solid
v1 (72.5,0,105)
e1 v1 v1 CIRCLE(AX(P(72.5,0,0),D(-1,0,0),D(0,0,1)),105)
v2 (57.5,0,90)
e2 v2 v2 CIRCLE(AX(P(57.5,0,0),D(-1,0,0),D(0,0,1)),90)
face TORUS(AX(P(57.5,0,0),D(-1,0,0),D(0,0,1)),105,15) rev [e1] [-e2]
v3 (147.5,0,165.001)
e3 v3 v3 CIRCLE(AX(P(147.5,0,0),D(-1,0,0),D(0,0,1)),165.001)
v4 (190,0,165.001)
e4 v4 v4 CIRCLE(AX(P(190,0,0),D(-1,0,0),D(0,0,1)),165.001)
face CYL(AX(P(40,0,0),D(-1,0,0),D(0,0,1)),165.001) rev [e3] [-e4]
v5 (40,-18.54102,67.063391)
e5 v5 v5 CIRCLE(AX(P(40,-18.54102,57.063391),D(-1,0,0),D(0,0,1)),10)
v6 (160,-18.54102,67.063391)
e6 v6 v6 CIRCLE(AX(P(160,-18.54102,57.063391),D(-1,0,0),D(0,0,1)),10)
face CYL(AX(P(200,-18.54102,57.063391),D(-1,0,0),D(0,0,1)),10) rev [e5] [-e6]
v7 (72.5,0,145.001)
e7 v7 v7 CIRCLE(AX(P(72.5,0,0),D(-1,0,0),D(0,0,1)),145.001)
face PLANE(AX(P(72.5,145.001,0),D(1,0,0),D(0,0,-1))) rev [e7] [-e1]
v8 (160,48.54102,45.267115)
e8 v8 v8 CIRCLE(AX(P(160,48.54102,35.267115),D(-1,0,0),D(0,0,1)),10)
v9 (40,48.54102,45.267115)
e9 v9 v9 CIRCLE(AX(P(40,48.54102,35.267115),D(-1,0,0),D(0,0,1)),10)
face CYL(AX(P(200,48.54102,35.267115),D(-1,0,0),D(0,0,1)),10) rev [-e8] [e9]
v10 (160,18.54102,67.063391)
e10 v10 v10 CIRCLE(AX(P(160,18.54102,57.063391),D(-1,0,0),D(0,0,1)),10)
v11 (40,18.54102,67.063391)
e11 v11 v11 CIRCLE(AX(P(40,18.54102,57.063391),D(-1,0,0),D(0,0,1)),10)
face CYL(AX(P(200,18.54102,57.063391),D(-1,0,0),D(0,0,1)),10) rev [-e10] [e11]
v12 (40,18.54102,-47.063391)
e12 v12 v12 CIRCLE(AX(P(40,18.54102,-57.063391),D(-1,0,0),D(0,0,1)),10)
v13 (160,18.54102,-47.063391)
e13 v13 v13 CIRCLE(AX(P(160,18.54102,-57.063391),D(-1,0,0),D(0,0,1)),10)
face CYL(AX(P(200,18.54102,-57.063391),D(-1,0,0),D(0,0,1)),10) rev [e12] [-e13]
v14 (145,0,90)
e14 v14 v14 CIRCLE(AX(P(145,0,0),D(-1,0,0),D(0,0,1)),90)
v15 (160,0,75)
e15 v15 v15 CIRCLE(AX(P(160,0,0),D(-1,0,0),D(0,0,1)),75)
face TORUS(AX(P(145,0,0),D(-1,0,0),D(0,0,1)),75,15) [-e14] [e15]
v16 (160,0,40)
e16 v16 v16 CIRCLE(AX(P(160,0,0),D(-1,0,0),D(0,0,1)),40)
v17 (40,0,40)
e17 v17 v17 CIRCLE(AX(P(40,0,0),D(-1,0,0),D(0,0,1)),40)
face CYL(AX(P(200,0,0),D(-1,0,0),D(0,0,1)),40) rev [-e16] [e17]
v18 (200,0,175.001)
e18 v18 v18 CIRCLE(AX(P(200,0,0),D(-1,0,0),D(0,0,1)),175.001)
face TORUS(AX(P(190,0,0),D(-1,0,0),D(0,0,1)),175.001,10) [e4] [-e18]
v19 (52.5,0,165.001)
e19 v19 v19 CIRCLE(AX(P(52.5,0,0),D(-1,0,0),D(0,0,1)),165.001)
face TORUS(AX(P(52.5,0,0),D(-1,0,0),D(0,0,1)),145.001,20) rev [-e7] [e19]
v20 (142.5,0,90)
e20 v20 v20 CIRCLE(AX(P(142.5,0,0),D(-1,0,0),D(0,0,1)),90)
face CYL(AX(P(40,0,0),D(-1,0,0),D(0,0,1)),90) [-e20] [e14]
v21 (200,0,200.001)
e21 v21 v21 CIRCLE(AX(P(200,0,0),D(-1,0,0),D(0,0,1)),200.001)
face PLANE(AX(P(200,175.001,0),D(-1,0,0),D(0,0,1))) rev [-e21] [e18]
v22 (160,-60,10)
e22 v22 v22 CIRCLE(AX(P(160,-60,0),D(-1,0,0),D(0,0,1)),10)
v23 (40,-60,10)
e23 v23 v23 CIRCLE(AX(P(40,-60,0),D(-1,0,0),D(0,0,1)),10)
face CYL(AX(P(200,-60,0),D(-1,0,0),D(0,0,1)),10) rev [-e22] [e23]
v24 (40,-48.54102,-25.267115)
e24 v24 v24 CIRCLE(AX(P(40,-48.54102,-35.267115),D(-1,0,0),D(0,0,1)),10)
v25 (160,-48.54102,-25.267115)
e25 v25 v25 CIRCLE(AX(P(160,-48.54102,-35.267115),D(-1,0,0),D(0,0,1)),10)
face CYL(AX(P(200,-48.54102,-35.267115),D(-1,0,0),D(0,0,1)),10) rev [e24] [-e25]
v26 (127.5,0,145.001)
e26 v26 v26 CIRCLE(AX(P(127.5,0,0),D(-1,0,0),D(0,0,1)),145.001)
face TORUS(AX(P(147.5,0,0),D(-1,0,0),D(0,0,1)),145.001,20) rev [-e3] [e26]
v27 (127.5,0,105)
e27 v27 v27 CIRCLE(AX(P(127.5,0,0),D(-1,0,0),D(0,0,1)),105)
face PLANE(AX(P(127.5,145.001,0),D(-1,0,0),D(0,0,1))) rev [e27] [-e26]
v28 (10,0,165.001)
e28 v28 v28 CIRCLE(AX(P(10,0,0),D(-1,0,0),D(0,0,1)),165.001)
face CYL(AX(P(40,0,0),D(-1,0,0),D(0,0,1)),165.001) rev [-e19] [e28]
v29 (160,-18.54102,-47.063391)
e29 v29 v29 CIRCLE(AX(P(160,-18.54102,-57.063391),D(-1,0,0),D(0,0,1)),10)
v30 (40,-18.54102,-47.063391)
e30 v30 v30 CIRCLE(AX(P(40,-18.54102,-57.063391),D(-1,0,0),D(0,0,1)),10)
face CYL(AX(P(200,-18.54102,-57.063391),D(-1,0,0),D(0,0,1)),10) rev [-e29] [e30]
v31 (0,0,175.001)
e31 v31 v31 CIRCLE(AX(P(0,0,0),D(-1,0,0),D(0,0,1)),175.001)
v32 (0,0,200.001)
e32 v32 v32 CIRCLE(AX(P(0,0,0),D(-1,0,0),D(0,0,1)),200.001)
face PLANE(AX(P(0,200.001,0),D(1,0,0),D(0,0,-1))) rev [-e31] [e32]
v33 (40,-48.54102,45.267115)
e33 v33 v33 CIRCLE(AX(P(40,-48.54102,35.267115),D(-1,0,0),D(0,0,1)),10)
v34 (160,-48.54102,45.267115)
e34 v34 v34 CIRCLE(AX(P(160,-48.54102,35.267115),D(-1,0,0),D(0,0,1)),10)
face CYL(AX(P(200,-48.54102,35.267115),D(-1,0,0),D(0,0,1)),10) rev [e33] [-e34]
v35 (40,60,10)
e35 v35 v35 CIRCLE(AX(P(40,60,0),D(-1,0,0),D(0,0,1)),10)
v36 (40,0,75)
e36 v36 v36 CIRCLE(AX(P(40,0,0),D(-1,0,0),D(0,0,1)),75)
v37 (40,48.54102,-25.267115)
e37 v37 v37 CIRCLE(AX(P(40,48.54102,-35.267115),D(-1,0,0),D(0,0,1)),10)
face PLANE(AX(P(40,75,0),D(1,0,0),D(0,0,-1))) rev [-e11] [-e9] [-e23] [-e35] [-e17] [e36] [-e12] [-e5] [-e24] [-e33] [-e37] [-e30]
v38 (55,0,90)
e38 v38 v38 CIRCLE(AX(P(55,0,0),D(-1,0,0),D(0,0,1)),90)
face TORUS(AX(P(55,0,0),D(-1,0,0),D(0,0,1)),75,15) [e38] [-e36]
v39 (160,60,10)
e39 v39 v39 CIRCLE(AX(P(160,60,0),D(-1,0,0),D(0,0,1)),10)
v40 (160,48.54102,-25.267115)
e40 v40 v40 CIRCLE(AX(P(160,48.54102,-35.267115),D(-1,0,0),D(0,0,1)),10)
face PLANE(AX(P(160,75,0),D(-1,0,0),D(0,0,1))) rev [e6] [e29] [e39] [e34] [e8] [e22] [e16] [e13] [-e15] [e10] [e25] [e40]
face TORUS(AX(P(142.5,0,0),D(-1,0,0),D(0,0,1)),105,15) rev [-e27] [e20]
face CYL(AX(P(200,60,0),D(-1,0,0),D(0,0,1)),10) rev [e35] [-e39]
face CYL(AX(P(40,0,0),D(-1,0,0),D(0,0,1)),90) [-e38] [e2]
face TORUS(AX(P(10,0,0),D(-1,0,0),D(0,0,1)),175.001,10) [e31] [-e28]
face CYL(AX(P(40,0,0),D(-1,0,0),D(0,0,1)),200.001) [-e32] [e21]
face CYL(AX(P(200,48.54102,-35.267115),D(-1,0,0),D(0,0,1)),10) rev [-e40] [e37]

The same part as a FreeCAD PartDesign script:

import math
import FreeCAD as App
import Part
import Sketcher

V = App.Vector

doc = App.newDocument("Part")
params = doc.addObject("Spreadsheet::Sheet", "Params")
for row, (alias, value) in enumerate([
    ("sketch1_radius", "15 mm"),
    ("sketch1_radius2", "20 mm"),
    ("sketch1_radius3", "10 mm"),
    ("sketch1_width", "120 mm"),
    ("sketch1_width2", "200 mm"),
    ("revolution_angle", "360 deg"),
    ("sketch2_diameter", "80 mm"),
    ("sketch2_diameter2", "20 mm"),
], start=1):
    params.set(f"A{row}", alias)
    params.set(f"B{row}", "=" + value)
    params.setAlias(f"B{row}", alias)

body = doc.addObject("PartDesign::Body", "Body")

sketch1 = body.newObject("Sketcher::SketchObject", "Sketch")
sketch1.AttachmentSupport = (doc.getObject("XY_Plane"), [""])
sketch1.MapMode = "FlatFace"
sketch1.addGeometry(Part.LineSegment(V(40, 0, 0), V(160, 0, 0)), False)
sketch1.addGeometry(Part.LineSegment(V(160, 0, 0), V(160, 75, 0)), False)
sketch1.addGeometry(Part.ArcOfCircle(Part.Circle(V(145, 75, 0), V(0, 0, 1), 15), math.radians(0), math.radians(90)), False)
sketch1.addGeometry(Part.LineSegment(V(145, 90, 0), V(142.5, 90, 0)), False)
sketch1.addGeometry(Part.ArcOfCircle(Part.Circle(V(142.5, 105, 0), V(0, 0, 1), 15), math.radians(180), math.radians(270)), False)
sketch1.addGeometry(Part.LineSegment(V(127.5, 105, 0), V(127.5, 145, 0)), False)
sketch1.addGeometry(Part.ArcOfCircle(Part.Circle(V(147.5, 145, 0), V(0, 0, 1), 20), math.radians(90), math.radians(180)), False)
sketch1.addGeometry(Part.LineSegment(V(147.5, 165, 0), V(190, 165, 0)), False)
sketch1.addGeometry(Part.ArcOfCircle(Part.Circle(V(190, 175, 0), V(0, 0, 1), 10), math.radians(-90), math.radians(0)), False)
sketch1.addGeometry(Part.LineSegment(V(200, 175, 0), V(200, 200, 0)), False)
sketch1.addGeometry(Part.LineSegment(V(200, 200, 0), V(0, 200, 0)), False)
sketch1.addGeometry(Part.LineSegment(V(0, 200, 0), V(0, 175, 0)), False)
sketch1.addGeometry(Part.ArcOfCircle(Part.Circle(V(10, 175, 0), V(0, 0, 1), 10), math.radians(180), math.radians(270)), False)
sketch1.addGeometry(Part.LineSegment(V(10, 165, 0), V(52.5, 165, 0)), False)
sketch1.addGeometry(Part.ArcOfCircle(Part.Circle(V(52.5, 145, 0), V(0, 0, 1), 20), math.radians(0), math.radians(90)), False)
sketch1.addGeometry(Part.LineSegment(V(72.5, 145, 0), V(72.5, 105, 0)), False)
sketch1.addGeometry(Part.ArcOfCircle(Part.Circle(V(57.5, 105, 0), V(0, 0, 1), 15), math.radians(-90), math.radians(0)), False)
sketch1.addGeometry(Part.LineSegment(V(57.5, 90, 0), V(55, 90, 0)), False)
sketch1.addGeometry(Part.ArcOfCircle(Part.Circle(V(55, 75, 0), V(0, 0, 1), 15), math.radians(90), math.radians(180)), False)
sketch1.addGeometry(Part.LineSegment(V(40, 75, 0), V(40, 0, 0)), False)
sketch1.addConstraint(Sketcher.Constraint("Coincident", 0, 2, 1, 1))
sketch1.addConstraint(Sketcher.Constraint("Tangent", 1, 2, 2, 1))
sketch1.addConstraint(Sketcher.Constraint("Tangent", 2, 2, 3, 1))
sketch1.addConstraint(Sketcher.Constraint("Tangent", 3, 2, 4, 2))
sketch1.addConstraint(Sketcher.Constraint("Tangent", 4, 1, 5, 1))
sketch1.addConstraint(Sketcher.Constraint("Tangent", 5, 2, 6, 2))
sketch1.addConstraint(Sketcher.Constraint("Tangent", 6, 1, 7, 1))
sketch1.addConstraint(Sketcher.Constraint("Tangent", 7, 2, 8, 1))
sketch1.addConstraint(Sketcher.Constraint("Tangent", 8, 2, 9, 1))
sketch1.addConstraint(Sketcher.Constraint("Coincident", 9, 2, 10, 1))
sketch1.addConstraint(Sketcher.Constraint("Coincident", 10, 2, 11, 1))
sketch1.addConstraint(Sketcher.Constraint("Tangent", 11, 2, 12, 1))
sketch1.addConstraint(Sketcher.Constraint("Tangent", 12, 2, 13, 1))
sketch1.addConstraint(Sketcher.Constraint("Tangent", 13, 2, 14, 2))
sketch1.addConstraint(Sketcher.Constraint("Tangent", 14, 1, 15, 1))
sketch1.addConstraint(Sketcher.Constraint("Tangent", 15, 2, 16, 2))
sketch1.addConstraint(Sketcher.Constraint("Tangent", 16, 1, 17, 1))
sketch1.addConstraint(Sketcher.Constraint("Tangent", 17, 2, 18, 1))
sketch1.addConstraint(Sketcher.Constraint("Tangent", 18, 2, 19, 1))
sketch1.addConstraint(Sketcher.Constraint("Coincident", 19, 2, 0, 1))
sketch1.addConstraint(Sketcher.Constraint("Horizontal", 0))
sketch1.addConstraint(Sketcher.Constraint("Vertical", 1))
sketch1.addConstraint(Sketcher.Constraint("Horizontal", 3))
sketch1.addConstraint(Sketcher.Constraint("Vertical", 5))
sketch1.addConstraint(Sketcher.Constraint("Horizontal", 7))
sketch1.addConstraint(Sketcher.Constraint("Vertical", 9))
sketch1.addConstraint(Sketcher.Constraint("Horizontal", 10))
sketch1.addConstraint(Sketcher.Constraint("Vertical", 11))
sketch1.addConstraint(Sketcher.Constraint("Horizontal", 13))
sketch1.addConstraint(Sketcher.Constraint("Vertical", 15))
sketch1.addConstraint(Sketcher.Constraint("Horizontal", 17))
sketch1.addConstraint(Sketcher.Constraint("Vertical", 19))
sketch1.addConstraint(Sketcher.Constraint("Equal", 2, 4))
sketch1.addConstraint(Sketcher.Constraint("Equal", 8, 12))
sketch1.addConstraint(Sketcher.Constraint("Equal", 6, 14))
sketch1.addConstraint(Sketcher.Constraint("Equal", 4, 16))
sketch1.addConstraint(Sketcher.Constraint("Equal", 16, 18))
sketch1.addConstraint(Sketcher.Constraint("PointOnObject", 0, 2, -1))
sketch1.addConstraint(Sketcher.Constraint("PointOnObject", 10, 2, -2))
sketch1.addConstraint(Sketcher.Constraint("Horizontal", 8, 3, 12, 3))
sketch1.addConstraint(Sketcher.Constraint("Horizontal", 4, 3, 16, 3))
sketch1.addConstraint(Sketcher.Constraint("Equal", 7, 13))
sketch1.addConstraint(Sketcher.Constraint("Equal", 3, 17))
sketch1.addConstraint(Sketcher.Constraint("Radius", 2, 15.0))
sketch1.addConstraint(Sketcher.Constraint("Radius", 6, 20.0))
sketch1.addConstraint(Sketcher.Constraint("Radius", 8, 10.0))
sketch1.addConstraint(Sketcher.Constraint("DistanceX", 0, 1, 0, 2, 120.0))
sketch1.addConstraint(Sketcher.Constraint("DistanceX", 10, 2, 10, 1, 200.0))
sketch1.addConstraint(Sketcher.Constraint("DistanceY", 1, 1, 1, 2, 75.0))
sketch1.addConstraint(Sketcher.Constraint("DistanceY", 9, 1, 9, 2, 25.0))
sketch1.addConstraint(Sketcher.Constraint("DistanceX", 3, 2, 3, 1, 2.5))
sketch1.addConstraint(Sketcher.Constraint("DistanceY", 5, 1, 5, 2, 40.001))
sketch1.setExpression("Constraints[43]", "Params.sketch1_radius")
sketch1.setExpression("Constraints[44]", "Params.sketch1_radius2")
sketch1.setExpression("Constraints[45]", "Params.sketch1_radius3")
sketch1.setExpression("Constraints[46]", "Params.sketch1_width")
sketch1.setExpression("Constraints[47]", "Params.sketch1_width2")
revolution = body.newObject("PartDesign::Revolution", "Revolution")
revolution.Profile = sketch1
revolution.ReferenceAxis = (sketch1, ["H_Axis"])
revolution.setExpression("Angle", "Params.revolution_angle")

sketch2 = body.newObject("Sketcher::SketchObject", "Sketch001")
sketch2.AttachmentSupport = (doc.getObject("YZ_Plane"), [""])
sketch2.MapMode = "FlatFace"
sketch2.AttachmentOffset = App.Placement(V(0, 0, 40), App.Rotation())
sketch2.addGeometry(Part.Circle(V(0, 0, 0), V(0, 0, 1), 40), False)
sketch2.addGeometry(Part.Circle(V(60, 0, 0), V(0, 0, 1), 10), False)
sketch2.addGeometry(Part.Circle(V(49, 35, 0), V(0, 0, 1), 10), False)
sketch2.addGeometry(Part.Circle(V(19, 57, 0), V(0, 0, 1), 10), False)
sketch2.addGeometry(Part.Circle(V(-19, 57, 0), V(0, 0, 1), 10), False)
sketch2.addGeometry(Part.Circle(V(-49, 35, 0), V(0, 0, 1), 10), False)
sketch2.addGeometry(Part.Circle(V(-60, 0, 0), V(0, 0, 1), 10), False)
sketch2.addGeometry(Part.Circle(V(-49, -35, 0), V(0, 0, 1), 10), False)
sketch2.addGeometry(Part.Circle(V(-19, -57, 0), V(0, 0, 1), 10), False)
sketch2.addGeometry(Part.Circle(V(19, -57, 0), V(0, 0, 1), 10), False)
sketch2.addGeometry(Part.Circle(V(49, -35, 0), V(0, 0, 1), 10), False)
sketch2.addConstraint(Sketcher.Constraint("Coincident", 0, 3, -1, 1))
sketch2.addConstraint(Sketcher.Constraint("Equal", 1, 2))
sketch2.addConstraint(Sketcher.Constraint("Equal", 2, 3))
sketch2.addConstraint(Sketcher.Constraint("Equal", 3, 4))
sketch2.addConstraint(Sketcher.Constraint("Equal", 4, 5))
sketch2.addConstraint(Sketcher.Constraint("Equal", 5, 6))
sketch2.addConstraint(Sketcher.Constraint("Equal", 6, 7))
sketch2.addConstraint(Sketcher.Constraint("Equal", 7, 8))
sketch2.addConstraint(Sketcher.Constraint("Equal", 8, 9))
sketch2.addConstraint(Sketcher.Constraint("Equal", 9, 10))
sketch2.addConstraint(Sketcher.Constraint("Symmetric", 1, 3, 6, 3, -1, 1))
sketch2.addConstraint(Sketcher.Constraint("Symmetric", 2, 3, 7, 3, -1, 1))
sketch2.addConstraint(Sketcher.Constraint("Symmetric", 3, 3, 8, 3, -1, 1))
sketch2.addConstraint(Sketcher.Constraint("Symmetric", 4, 3, 9, 3, -1, 1))
sketch2.addConstraint(Sketcher.Constraint("Symmetric", 5, 3, 10, 3, -1, 1))
sketch2.addConstraint(Sketcher.Constraint("Symmetric", 3, 3, 4, 3, -2))
sketch2.addConstraint(Sketcher.Constraint("Symmetric", 2, 3, 5, 3, -2))
sketch2.addConstraint(Sketcher.Constraint("PointOnObject", 1, 3, -1))
sketch2.addConstraint(Sketcher.Constraint("Diameter", 0, 80.0))
sketch2.addConstraint(Sketcher.Constraint("Diameter", 1, 20.0))
sketch2.addConstraint(Sketcher.Constraint("DistanceX", -1, 1, 1, 3, 60.0))
sketch2.addConstraint(Sketcher.Constraint("DistanceX", 3, 3, 2, 3, 30.0))
sketch2.addConstraint(Sketcher.Constraint("DistanceX", -1, 1, 2, 3, 48.54102))
sketch2.addConstraint(Sketcher.Constraint("DistanceY", -1, 1, 3, 3, 57.063391))
sketch2.addConstraint(Sketcher.Constraint("DistanceY", 7, 3, 5, 3, 70.53423))
sketch2.setExpression("Constraints[18]", "Params.sketch2_diameter")
sketch2.setExpression("Constraints[19]", "Params.sketch2_diameter2")
pocket1 = body.newObject("PartDesign::Pocket", "Pocket")
pocket1.Profile = sketch2
pocket1.Type = "ThroughAll"
pocket1.Reversed = True

doc.recompute()
